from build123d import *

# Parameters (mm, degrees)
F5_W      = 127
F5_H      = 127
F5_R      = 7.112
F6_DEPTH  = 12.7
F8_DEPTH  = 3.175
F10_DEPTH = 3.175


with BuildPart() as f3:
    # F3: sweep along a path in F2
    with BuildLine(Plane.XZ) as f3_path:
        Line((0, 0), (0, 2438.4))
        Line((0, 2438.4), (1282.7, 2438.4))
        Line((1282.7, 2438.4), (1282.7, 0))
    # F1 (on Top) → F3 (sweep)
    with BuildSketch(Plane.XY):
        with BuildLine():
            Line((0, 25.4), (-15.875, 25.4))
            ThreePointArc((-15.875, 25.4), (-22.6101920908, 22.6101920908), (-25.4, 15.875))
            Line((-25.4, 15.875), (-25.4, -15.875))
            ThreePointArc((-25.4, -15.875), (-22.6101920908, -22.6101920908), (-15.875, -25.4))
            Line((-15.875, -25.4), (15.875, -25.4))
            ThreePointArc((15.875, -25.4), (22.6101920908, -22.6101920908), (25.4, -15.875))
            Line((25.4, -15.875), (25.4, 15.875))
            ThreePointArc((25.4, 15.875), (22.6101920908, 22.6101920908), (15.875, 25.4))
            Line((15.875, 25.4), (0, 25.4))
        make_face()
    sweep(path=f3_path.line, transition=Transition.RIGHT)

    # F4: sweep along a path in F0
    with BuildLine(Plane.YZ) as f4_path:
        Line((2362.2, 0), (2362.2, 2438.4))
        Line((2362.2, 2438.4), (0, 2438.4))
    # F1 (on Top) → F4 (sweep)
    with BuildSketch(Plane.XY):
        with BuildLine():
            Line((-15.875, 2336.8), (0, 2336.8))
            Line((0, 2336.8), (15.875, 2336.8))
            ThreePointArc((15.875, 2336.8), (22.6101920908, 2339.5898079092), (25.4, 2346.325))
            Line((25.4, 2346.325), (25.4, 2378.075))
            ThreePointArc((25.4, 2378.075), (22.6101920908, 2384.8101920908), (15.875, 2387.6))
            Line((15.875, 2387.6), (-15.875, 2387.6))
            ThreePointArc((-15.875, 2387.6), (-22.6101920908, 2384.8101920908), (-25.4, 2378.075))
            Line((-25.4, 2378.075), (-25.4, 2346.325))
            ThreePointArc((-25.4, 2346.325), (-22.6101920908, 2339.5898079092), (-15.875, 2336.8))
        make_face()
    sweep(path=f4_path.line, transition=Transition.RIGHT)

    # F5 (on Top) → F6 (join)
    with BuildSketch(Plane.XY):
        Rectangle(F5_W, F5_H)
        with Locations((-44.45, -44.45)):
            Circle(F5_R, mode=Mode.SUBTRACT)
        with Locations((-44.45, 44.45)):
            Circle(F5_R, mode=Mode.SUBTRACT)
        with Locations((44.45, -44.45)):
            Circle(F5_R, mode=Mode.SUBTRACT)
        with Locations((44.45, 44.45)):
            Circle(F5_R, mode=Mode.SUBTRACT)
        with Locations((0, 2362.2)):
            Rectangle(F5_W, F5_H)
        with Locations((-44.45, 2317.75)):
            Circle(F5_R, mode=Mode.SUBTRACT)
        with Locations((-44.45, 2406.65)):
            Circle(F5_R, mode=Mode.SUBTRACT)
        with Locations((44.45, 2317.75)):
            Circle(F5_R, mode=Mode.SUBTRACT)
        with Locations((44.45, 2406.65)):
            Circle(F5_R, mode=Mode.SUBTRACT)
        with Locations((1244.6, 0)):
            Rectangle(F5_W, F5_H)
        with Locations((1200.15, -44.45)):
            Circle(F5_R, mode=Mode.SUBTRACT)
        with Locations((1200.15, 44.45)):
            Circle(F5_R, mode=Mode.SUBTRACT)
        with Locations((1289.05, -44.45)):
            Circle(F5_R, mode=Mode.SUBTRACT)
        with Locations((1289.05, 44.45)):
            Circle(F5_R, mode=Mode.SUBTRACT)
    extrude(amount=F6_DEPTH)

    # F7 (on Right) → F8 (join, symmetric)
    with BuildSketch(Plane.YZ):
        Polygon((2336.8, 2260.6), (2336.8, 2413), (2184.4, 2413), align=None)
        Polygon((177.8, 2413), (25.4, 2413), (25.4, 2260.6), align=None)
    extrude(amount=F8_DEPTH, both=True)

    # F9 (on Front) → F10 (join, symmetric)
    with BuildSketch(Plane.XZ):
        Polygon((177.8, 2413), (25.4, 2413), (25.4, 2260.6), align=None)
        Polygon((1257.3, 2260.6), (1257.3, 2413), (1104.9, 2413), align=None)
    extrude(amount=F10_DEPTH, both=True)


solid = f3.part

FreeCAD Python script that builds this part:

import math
import FreeCAD as App
import Part
import Sketcher
from FreeCAD import Vector
Q = App.Units.Quantity


def add_polygon(sketch, points):
    """Adds a closed chain of lines whose ends are joined by coincident constraints."""
    first, n = sketch.GeometryCount, len(points)
    for a, b in zip(points, points[1:] + points[:1]):
        sketch.addGeometry(Part.LineSegment(App.Vector(*a, 0), App.Vector(*b, 0)), False)
    for i in range(n):
        sketch.addConstraint(Sketcher.Constraint("Coincident", first + i, 2, first + (i + 1) % n, 1))

doc = App.newDocument("Part")
body = doc.addObject("PartDesign::Body", "Body")

sketch1 = doc.addObject("Sketcher::SketchObject", "Sketch")
body.addObject(sketch1)
sketch1.AttachmentSupport = (doc.XY_Plane, [""])
sketch1.MapMode = "FlatFace"
sketch1.addGeometry([
    Part.ArcOfCircle(Part.Circle(Vector(-16, 16, 0), Vector(0, 0, 1), 10), math.radians(90), math.radians(180)),
    Part.LineSegment(Vector(-25, 16, 0), Vector(-25, -16, 0)),
    Part.ArcOfCircle(Part.Circle(Vector(-16, -16, 0), Vector(0, 0, 1), 10), math.radians(180), math.radians(270)),
    Part.LineSegment(Vector(-16, -25, 0), Vector(16, -25, 0)),
    Part.ArcOfCircle(Part.Circle(Vector(16, -16, 0), Vector(0, 0, 1), 10), math.radians(-90), math.radians(0)),
    Part.LineSegment(Vector(25, -16, 0), Vector(25, 16, 0)),
    Part.ArcOfCircle(Part.Circle(Vector(16, 16, 0), Vector(0, 0, 1), 10), math.radians(0), math.radians(90)),
    Part.LineSegment(Vector(16, 25, 0), Vector(-16, 25, 0)),
], False)
sketch1.addConstraint([
    Sketcher.Constraint("Tangent", 0, 2, 1, 1),
    Sketcher.Constraint("Tangent", 1, 2, 2, 1),
    Sketcher.Constraint("Tangent", 2, 2, 3, 1),
    Sketcher.Constraint("Tangent", 3, 2, 4, 1),
    Sketcher.Constraint("Tangent", 4, 2, 5, 1),
    Sketcher.Constraint("Tangent", 5, 2, 6, 1),
    Sketcher.Constraint("Tangent", 6, 2, 7, 1),
    Sketcher.Constraint("Tangent", 7, 2, 0, 1),
    Sketcher.Constraint("Vertical", 1),
    Sketcher.Constraint("Horizontal", 3),
    Sketcher.Constraint("Vertical", 5),
    Sketcher.Constraint("Horizontal", 7),
    Sketcher.Constraint("Equal", 0, 2),
    Sketcher.Constraint("Equal", 2, 4),
    Sketcher.Constraint("Equal", 4, 6),
    Sketcher.Constraint("Symmetric", 0, 3, 4, 3, -1, 1),
    Sketcher.Constraint("Equal", 7, 1),
    Sketcher.Constraint("DistanceX", 0, 2, -1, 1, Q("1 in")),
    Sketcher.Constraint("Radius", 0, Q("0.375 in")),
])

sketch2 = doc.addObject("Sketcher::SketchObject", "Sketch001")
body.addObject(sketch2)
sketch2.AttachmentSupport = (doc.XZ_Plane, [""])
sketch2.MapMode = "FlatFace"
sketch2.addGeometry([
    Part.LineSegment(Vector(0, 0, 0), Vector(0, 2438, 0)),
    Part.LineSegment(Vector(0, 2438, 0), Vector(1283, 2438, 0)),
    Part.LineSegment(Vector(1283, 2438, 0), Vector(1283, 0, 0)),
], False)
sketch2.addConstraint([
    Sketcher.Constraint("Coincident", 0, 2, 1, 1),
    Sketcher.Constraint("Coincident", 1, 2, 2, 1),
    Sketcher.Constraint("Vertical", 0),
    Sketcher.Constraint("Horizontal", 1),
    Sketcher.Constraint("Vertical", 2),
    Sketcher.Constraint("Coincident", 0, 1, -1, 1),
    Sketcher.Constraint("PointOnObject", 2, 2, -1),
    Sketcher.Constraint("DistanceY", 0, 1, 0, 2, Q("96 in")),
    Sketcher.Constraint("DistanceX", 1, 1, 1, 2, Q("50.5 in")),
])
doc.recompute()

additivepipe = doc.addObject("PartDesign::AdditivePipe", "AdditivePipe")
body.addObject(additivepipe)
additivepipe.Profile = sketch1
additivepipe.Spine = (sketch2, ["Edge1", "Edge2", "Edge3"])
additivepipe.Transition = "Right corner"

sketch3 = doc.addObject("Sketcher::SketchObject", "Sketch002")
body.addObject(sketch3)
sketch3.AttachmentSupport = (doc.XY_Plane, [""])
sketch3.MapMode = "FlatFace"
sketch3.addGeometry([
    Part.LineSegment(Vector(-16, 2337, 0), Vector(16, 2337, 0)),
    Part.ArcOfCircle(Part.Circle(Vector(16, 2346, 0), Vector(0, 0, 1), 10), math.radians(-90), math.radians(0)),
    Part.LineSegment(Vector(25, 2346, 0), Vector(25, 2378, 0)),
    Part.ArcOfCircle(Part.Circle(Vector(16, 2378, 0), Vector(0, 0, 1), 10), math.radians(0), math.radians(90)),
    Part.LineSegment(Vector(16, 2388, 0), Vector(-16, 2388, 0)),
    Part.ArcOfCircle(Part.Circle(Vector(-16, 2378, 0), Vector(0, 0, 1), 10), math.radians(90), math.radians(180)),
    Part.LineSegment(Vector(-25, 2378, 0), Vector(-25, 2346, 0)),
    Part.ArcOfCircle(Part.Circle(Vector(-16, 2346, 0), Vector(0, 0, 1), 10), math.radians(180), math.radians(270)),
], False)
sketch3.addConstraint([
    Sketcher.Constraint("Tangent", 0, 2, 1, 1),
    Sketcher.Constraint("Tangent", 1, 2, 2, 1),
    Sketcher.Constraint("Tangent", 2, 2, 3, 1),
    Sketcher.Constraint("Tangent", 3, 2, 4, 1),
    Sketcher.Constraint("Tangent", 4, 2, 5, 1),
    Sketcher.Constraint("Tangent", 5, 2, 6, 1),
    Sketcher.Constraint("Tangent", 6, 2, 7, 1),
    Sketcher.Constraint("Tangent", 7, 2, 0, 1),
    Sketcher.Constraint("Horizontal", 0),
    Sketcher.Constraint("Vertical", 2),
    Sketcher.Constraint("Horizontal", 4),
    Sketcher.Constraint("Vertical", 6),
    Sketcher.Constraint("Equal", 1, 3),
    Sketcher.Constraint("Equal", 3, 5),
    Sketcher.Constraint("Equal", 5, 7),
    Sketcher.Constraint("Equal", 4, 2),
    Sketcher.Constraint("DistanceY", -1, 1, 0, 2, Q("92 in")),
    Sketcher.Constraint("DistanceX", -1, 1, 1, 2, Q("1 in")),
    Sketcher.Constraint("DistanceY", -1, 1, 3, 2, Q("94 in")),
    Sketcher.Constraint("Radius", 1, Q("0.375 in")),
])

sketch4 = doc.addObject("Sketcher::SketchObject", "Sketch003")
body.addObject(sketch4)
sketch4.AttachmentSupport = (doc.YZ_Plane, [""])
sketch4.MapMode = "FlatFace"
sketch4.addGeometry([
    Part.LineSegment(Vector(2362, 0, 0), Vector(2362, 2438, 0)),
    Part.LineSegment(Vector(2362, 2438, 0), Vector(0, 2438, 0)),
], False)
sketch4.addConstraint([
    Sketcher.Constraint("Coincident", 0, 2, 1, 1),
    Sketcher.Constraint("Vertical", 0),
    Sketcher.Constraint("Horizontal", 1),
    Sketcher.Constraint("PointOnObject", 0, 1, -1),
    Sketcher.Constraint("PointOnObject", 1, 2, -2),
    Sketcher.Constraint("DistanceX", 1, 2, 1, 1, Q("93 in")),
    Sketcher.Constraint("DistanceY", 0, 1, 0, 2, Q("96 in")),
])
doc.recompute()

additivepipe2 = doc.addObject("PartDesign::AdditivePipe", "AdditivePipe001")
body.addObject(additivepipe2)
additivepipe2.Profile = sketch3
additivepipe2.Spine = (sketch4, ["Edge1", "Edge2"])
additivepipe2.Transition = "Right corner"

sketch5 = doc.addObject("Sketcher::SketchObject", "Sketch004")
body.addObject(sketch5)
sketch5.AttachmentSupport = (doc.XY_Plane, [""])
sketch5.MapMode = "FlatFace"
add_polygon(sketch5, [(-64, 64), (-64, -64), (64, -64), (64, 64)])
sketch5.addGeometry(Part.Circle(Vector(-44, -44, 0), Vector(0, 0, 1), 7), False)
sketch5.addGeometry(Part.Circle(Vector(44, -44, 0), Vector(0, 0, 1), 7), False)
sketch5.addGeometry(Part.Circle(Vector(-44, 44, 0), Vector(0, 0, 1), 7), False)
sketch5.addGeometry(Part.Circle(Vector(44, 44, 0), Vector(0, 0, 1), 7), False)
add_polygon(sketch5, [(-64, 2426), (-64, 2299), (64, 2299), (64, 2426)])
sketch5.addGeometry(Part.Circle(Vector(-44, 2318, 0), Vector(0, 0, 1), 7), False)
sketch5.addGeometry(Part.Circle(Vector(44, 2318, 0), Vector(0, 0, 1), 7), False)
sketch5.addGeometry(Part.Circle(Vector(-44, 2407, 0), Vector(0, 0, 1), 7), False)
sketch5.addGeometry(Part.Circle(Vector(44, 2407, 0), Vector(0, 0, 1), 7), False)
add_polygon(sketch5, [(1181, 64), (1181, -64), (1308, -64), (1308, 64)])
sketch5.addGeometry(Part.Circle(Vector(1200, -44, 0), Vector(0, 0, 1), 7), False)
sketch5.addGeometry(Part.Circle(Vector(1289, -44, 0), Vector(0, 0, 1), 7), False)
sketch5.addGeometry(Part.Circle(Vector(1200, 44, 0), Vector(0, 0, 1), 7), False)
sketch5.addGeometry(Part.Circle(Vector(1289, 44, 0), Vector(0, 0, 1), 7), False)
sketch5.addConstraint([
    Sketcher.Constraint("Vertical", 0),
    Sketcher.Constraint("Horizontal", 1),
    Sketcher.Constraint("Vertical", 2),
    Sketcher.Constraint("Horizontal", 3),
    Sketcher.Constraint("Vertical", 8),
    Sketcher.Constraint("Horizontal", 9),
    Sketcher.Constraint("Vertical", 10),
    Sketcher.Constraint("Horizontal", 11),
    Sketcher.Constraint("Vertical", 16),
    Sketcher.Constraint("Horizontal", 17),
    Sketcher.Constraint("Vertical", 18),
    Sketcher.Constraint("Horizontal", 19),
    Sketcher.Constraint("Equal", 4, 5),
    Sketcher.Constraint("Equal", 5, 6),
    Sketcher.Constraint("Equal", 6, 7),
    Sketcher.Constraint("Equal", 7, 12),
    Sketcher.Constraint("Equal", 12, 13),
    Sketcher.Constraint("Equal", 13, 14),
    Sketcher.Constraint("Equal", 14, 15),
    Sketcher.Constraint("Equal", 15, 20),
    Sketcher.Constraint("Equal", 20, 21),
    Sketcher.Constraint("Equal", 21, 22),
    Sketcher.Constraint("Equal", 22, 23),
    Sketcher.Constraint("Symmetric", 5, 3, 6, 3, -1, 1),
    Sketcher.Constraint("Symmetric", 4, 3, 7, 3, -1, 1),
    Sketcher.Constraint("Symmetric", 0, 2, 2, 2, -1, 1),
    Sketcher.Constraint("Symmetric", 4, 3, 5, 3, -2),
    Sketcher.Constraint("Symmetric", 12, 3, 13, 3, -2),
    Sketcher.Constraint("Symmetric", 14, 3, 15, 3, -2),
    Sketcher.Constraint("Symmetric", 20, 3, 22, 3, -1),
    Sketcher.Constraint("Symmetric", 21, 3, 23, 3, -1),
    Sketcher.Constraint("Horizontal", 5, 3, 20, 3),
    Sketcher.Constraint("Horizontal", 20, 3, 21, 3),
    Sketcher.Constraint("Horizontal", 1, 2, 16, 2),
    Sketcher.Constraint("Horizontal", 3, 2, 18, 2),
    Sketcher.Constraint("Vertical", 6, 3, 12, 3),
    Sketcher.Constraint("Vertical", 12, 3, 14, 3),
    Sketcher.Constraint("Vertical", 3, 2, 8, 2),
    Sketcher.Constraint("Vertical", 2, 2, 9, 2),
    Sketcher.Constraint("Equal", 11, 17),
    Sketcher.Constraint("Equal", 19, 0),
    Sketcher.Constraint("Equal", 2, 8),
    Sketcher.Constraint("Diameter", 4, Q("0.56 in")),
    Sketcher.Constraint("DistanceX", 1, 1, 1, 2, Q("5 in")),
    Sketcher.Constraint("DistanceY", 4, 3, 12, 3, Q("93 in")),
    Sketcher.Constraint("DistanceY", 6, 3, 14, 3, Q("93 in")),
    Sketcher.Constraint("DistanceX", 4, 3, 20, 3, Q("49 in")),
    Sketcher.Constraint("DistanceX", 5, 3, 21, 3, Q("49 in")),
    Sketcher.Constraint("DistanceY", 3, 2, 8, 2, Q("88 in")),
    Sketcher.Constraint("DistanceX", 1, 2, 16, 2, Q("44 in")),
    Sketcher.Constraint("DistanceX", 4, 3, 5, 3, Q("3.5 in")),
    Sketcher.Constraint("DistanceY", 4, 3, 6, 3, Q("3.5 in")),
])
pad1 = doc.addObject("PartDesign::Pad", "Pad")
body.addObject(pad1)
pad1.Profile = sketch5
pad1.Length = Q("0.5 in")

sketch6 = doc.addObject("Sketcher::SketchObject", "Sketch005")
body.addObject(sketch6)
sketch6.AttachmentSupport = (doc.YZ_Plane, [""])
sketch6.MapMode = "FlatFace"
add_polygon(sketch6, [(2337, 2261), (2337, 2413), (2184, 2413)])
add_polygon(sketch6, [(178, 2413), (25, 2413), (25, 2261)])
sketch6.addConstraint([
    Sketcher.Constraint("Vertical", 0),
    Sketcher.Constraint("Horizontal", 1),
    Sketcher.Constraint("Horizontal", 3),
    Sketcher.Constraint("Vertical", 4),
    Sketcher.Constraint("Perpendicular", 2, 5),
    Sketcher.Constraint("Horizontal", 1, 2, 3, 2),
    Sketcher.Constraint("Horizontal", 2, 2, 4, 2),
    Sketcher.Constraint("Equal", 1, 3),
    Sketcher.Constraint("DistanceX", 1, 2, 1, 1, Q("6 in")),
    Sketcher.Constraint("DistanceX", -1, 1, 0, 2, Q("92 in")),
    Sketcher.Constraint("DistanceY", -1, 1, 0, 2, Q("95 in")),
    Sketcher.Constraint("DistanceX", -1, 1, 3, 2, Q("1 in")),
])
pad2 = doc.addObject("PartDesign::Pad", "Pad001")
body.addObject(pad2)
pad2.Profile = sketch6
pad2.Length = Q("0.25 in")
pad2.Midplane = True

sketch7 = doc.addObject("Sketcher::SketchObject", "Sketch006")
body.addObject(sketch7)
sketch7.AttachmentSupport = (doc.XZ_Plane, [""])
sketch7.MapMode = "FlatFace"
add_polygon(sketch7, [(178, 2413), (25, 2413), (25, 2261)])
add_polygon(sketch7, [(1257, 2261), (1257, 2413), (1105, 2413)])
sketch7.addConstraint([
    Sketcher.Constraint("Horizontal", 0),
    Sketcher.Constraint("Vertical", 1),
    Sketcher.Constraint("Vertical", 3),
    Sketcher.Constraint("Horizontal", 4),
    Sketcher.Constraint("Perpendicular", 2, 5),
    Sketcher.Constraint("Horizontal", 2, 2, 3, 2),
    Sketcher.Constraint("Horizontal", 1, 2, 5, 2),
    Sketcher.Constraint("Equal", 0, 4),
    Sketcher.Constraint("DistanceX", 0, 2, 0, 1, Q("6 in")),
    Sketcher.Constraint("DistanceX", -1, 1, 0, 2, Q("1 in")),
    Sketcher.Constraint("DistanceY", -1, 1, 0, 2, Q("95 in")),
    Sketcher.Constraint("DistanceX", -1, 1, 3, 2, Q("49.5 in")),
])
pad3 = doc.addObject("PartDesign::Pad", "Pad002")
body.addObject(pad3)
pad3.Profile = sketch7
pad3.Length = Q("0.25 in")
pad3.Midplane = True

doc.recompute()
